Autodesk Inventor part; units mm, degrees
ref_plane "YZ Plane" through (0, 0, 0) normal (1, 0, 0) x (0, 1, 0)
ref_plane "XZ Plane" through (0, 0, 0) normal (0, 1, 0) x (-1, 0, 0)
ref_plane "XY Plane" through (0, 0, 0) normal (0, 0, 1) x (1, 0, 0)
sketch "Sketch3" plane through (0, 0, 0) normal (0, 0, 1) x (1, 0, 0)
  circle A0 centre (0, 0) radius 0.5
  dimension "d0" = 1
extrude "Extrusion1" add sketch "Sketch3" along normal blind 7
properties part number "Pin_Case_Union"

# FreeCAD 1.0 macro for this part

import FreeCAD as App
import Part
import Sketcher
from FreeCAD import Vector

doc = App.newDocument("Part")
body = doc.addObject("PartDesign::Body", "Body")

# Sketch on XY plane
sketch1 = doc.addObject("Sketcher::SketchObject", "Sketch")
body.addObject(sketch1)
sketch1.AttachmentSupport = (doc.XY_Plane, [""])
sketch1.MapMode = "FlatFace"
sketch1.addGeometry(Part.Circle(Vector(0, 0, 0), Vector(0, 0, 1), 0.5), False)
sketch1.addConstraint(Sketcher.Constraint("Coincident", 0, 3, -1, 1))
sketch1.addConstraint(Sketcher.Constraint("Diameter", 0, 1.0))
pad1 = doc.addObject("PartDesign::Pad", "Pad")
body.addObject(pad1)
pad1.Profile = sketch1
pad1.Length = 7

doc.recompute()
